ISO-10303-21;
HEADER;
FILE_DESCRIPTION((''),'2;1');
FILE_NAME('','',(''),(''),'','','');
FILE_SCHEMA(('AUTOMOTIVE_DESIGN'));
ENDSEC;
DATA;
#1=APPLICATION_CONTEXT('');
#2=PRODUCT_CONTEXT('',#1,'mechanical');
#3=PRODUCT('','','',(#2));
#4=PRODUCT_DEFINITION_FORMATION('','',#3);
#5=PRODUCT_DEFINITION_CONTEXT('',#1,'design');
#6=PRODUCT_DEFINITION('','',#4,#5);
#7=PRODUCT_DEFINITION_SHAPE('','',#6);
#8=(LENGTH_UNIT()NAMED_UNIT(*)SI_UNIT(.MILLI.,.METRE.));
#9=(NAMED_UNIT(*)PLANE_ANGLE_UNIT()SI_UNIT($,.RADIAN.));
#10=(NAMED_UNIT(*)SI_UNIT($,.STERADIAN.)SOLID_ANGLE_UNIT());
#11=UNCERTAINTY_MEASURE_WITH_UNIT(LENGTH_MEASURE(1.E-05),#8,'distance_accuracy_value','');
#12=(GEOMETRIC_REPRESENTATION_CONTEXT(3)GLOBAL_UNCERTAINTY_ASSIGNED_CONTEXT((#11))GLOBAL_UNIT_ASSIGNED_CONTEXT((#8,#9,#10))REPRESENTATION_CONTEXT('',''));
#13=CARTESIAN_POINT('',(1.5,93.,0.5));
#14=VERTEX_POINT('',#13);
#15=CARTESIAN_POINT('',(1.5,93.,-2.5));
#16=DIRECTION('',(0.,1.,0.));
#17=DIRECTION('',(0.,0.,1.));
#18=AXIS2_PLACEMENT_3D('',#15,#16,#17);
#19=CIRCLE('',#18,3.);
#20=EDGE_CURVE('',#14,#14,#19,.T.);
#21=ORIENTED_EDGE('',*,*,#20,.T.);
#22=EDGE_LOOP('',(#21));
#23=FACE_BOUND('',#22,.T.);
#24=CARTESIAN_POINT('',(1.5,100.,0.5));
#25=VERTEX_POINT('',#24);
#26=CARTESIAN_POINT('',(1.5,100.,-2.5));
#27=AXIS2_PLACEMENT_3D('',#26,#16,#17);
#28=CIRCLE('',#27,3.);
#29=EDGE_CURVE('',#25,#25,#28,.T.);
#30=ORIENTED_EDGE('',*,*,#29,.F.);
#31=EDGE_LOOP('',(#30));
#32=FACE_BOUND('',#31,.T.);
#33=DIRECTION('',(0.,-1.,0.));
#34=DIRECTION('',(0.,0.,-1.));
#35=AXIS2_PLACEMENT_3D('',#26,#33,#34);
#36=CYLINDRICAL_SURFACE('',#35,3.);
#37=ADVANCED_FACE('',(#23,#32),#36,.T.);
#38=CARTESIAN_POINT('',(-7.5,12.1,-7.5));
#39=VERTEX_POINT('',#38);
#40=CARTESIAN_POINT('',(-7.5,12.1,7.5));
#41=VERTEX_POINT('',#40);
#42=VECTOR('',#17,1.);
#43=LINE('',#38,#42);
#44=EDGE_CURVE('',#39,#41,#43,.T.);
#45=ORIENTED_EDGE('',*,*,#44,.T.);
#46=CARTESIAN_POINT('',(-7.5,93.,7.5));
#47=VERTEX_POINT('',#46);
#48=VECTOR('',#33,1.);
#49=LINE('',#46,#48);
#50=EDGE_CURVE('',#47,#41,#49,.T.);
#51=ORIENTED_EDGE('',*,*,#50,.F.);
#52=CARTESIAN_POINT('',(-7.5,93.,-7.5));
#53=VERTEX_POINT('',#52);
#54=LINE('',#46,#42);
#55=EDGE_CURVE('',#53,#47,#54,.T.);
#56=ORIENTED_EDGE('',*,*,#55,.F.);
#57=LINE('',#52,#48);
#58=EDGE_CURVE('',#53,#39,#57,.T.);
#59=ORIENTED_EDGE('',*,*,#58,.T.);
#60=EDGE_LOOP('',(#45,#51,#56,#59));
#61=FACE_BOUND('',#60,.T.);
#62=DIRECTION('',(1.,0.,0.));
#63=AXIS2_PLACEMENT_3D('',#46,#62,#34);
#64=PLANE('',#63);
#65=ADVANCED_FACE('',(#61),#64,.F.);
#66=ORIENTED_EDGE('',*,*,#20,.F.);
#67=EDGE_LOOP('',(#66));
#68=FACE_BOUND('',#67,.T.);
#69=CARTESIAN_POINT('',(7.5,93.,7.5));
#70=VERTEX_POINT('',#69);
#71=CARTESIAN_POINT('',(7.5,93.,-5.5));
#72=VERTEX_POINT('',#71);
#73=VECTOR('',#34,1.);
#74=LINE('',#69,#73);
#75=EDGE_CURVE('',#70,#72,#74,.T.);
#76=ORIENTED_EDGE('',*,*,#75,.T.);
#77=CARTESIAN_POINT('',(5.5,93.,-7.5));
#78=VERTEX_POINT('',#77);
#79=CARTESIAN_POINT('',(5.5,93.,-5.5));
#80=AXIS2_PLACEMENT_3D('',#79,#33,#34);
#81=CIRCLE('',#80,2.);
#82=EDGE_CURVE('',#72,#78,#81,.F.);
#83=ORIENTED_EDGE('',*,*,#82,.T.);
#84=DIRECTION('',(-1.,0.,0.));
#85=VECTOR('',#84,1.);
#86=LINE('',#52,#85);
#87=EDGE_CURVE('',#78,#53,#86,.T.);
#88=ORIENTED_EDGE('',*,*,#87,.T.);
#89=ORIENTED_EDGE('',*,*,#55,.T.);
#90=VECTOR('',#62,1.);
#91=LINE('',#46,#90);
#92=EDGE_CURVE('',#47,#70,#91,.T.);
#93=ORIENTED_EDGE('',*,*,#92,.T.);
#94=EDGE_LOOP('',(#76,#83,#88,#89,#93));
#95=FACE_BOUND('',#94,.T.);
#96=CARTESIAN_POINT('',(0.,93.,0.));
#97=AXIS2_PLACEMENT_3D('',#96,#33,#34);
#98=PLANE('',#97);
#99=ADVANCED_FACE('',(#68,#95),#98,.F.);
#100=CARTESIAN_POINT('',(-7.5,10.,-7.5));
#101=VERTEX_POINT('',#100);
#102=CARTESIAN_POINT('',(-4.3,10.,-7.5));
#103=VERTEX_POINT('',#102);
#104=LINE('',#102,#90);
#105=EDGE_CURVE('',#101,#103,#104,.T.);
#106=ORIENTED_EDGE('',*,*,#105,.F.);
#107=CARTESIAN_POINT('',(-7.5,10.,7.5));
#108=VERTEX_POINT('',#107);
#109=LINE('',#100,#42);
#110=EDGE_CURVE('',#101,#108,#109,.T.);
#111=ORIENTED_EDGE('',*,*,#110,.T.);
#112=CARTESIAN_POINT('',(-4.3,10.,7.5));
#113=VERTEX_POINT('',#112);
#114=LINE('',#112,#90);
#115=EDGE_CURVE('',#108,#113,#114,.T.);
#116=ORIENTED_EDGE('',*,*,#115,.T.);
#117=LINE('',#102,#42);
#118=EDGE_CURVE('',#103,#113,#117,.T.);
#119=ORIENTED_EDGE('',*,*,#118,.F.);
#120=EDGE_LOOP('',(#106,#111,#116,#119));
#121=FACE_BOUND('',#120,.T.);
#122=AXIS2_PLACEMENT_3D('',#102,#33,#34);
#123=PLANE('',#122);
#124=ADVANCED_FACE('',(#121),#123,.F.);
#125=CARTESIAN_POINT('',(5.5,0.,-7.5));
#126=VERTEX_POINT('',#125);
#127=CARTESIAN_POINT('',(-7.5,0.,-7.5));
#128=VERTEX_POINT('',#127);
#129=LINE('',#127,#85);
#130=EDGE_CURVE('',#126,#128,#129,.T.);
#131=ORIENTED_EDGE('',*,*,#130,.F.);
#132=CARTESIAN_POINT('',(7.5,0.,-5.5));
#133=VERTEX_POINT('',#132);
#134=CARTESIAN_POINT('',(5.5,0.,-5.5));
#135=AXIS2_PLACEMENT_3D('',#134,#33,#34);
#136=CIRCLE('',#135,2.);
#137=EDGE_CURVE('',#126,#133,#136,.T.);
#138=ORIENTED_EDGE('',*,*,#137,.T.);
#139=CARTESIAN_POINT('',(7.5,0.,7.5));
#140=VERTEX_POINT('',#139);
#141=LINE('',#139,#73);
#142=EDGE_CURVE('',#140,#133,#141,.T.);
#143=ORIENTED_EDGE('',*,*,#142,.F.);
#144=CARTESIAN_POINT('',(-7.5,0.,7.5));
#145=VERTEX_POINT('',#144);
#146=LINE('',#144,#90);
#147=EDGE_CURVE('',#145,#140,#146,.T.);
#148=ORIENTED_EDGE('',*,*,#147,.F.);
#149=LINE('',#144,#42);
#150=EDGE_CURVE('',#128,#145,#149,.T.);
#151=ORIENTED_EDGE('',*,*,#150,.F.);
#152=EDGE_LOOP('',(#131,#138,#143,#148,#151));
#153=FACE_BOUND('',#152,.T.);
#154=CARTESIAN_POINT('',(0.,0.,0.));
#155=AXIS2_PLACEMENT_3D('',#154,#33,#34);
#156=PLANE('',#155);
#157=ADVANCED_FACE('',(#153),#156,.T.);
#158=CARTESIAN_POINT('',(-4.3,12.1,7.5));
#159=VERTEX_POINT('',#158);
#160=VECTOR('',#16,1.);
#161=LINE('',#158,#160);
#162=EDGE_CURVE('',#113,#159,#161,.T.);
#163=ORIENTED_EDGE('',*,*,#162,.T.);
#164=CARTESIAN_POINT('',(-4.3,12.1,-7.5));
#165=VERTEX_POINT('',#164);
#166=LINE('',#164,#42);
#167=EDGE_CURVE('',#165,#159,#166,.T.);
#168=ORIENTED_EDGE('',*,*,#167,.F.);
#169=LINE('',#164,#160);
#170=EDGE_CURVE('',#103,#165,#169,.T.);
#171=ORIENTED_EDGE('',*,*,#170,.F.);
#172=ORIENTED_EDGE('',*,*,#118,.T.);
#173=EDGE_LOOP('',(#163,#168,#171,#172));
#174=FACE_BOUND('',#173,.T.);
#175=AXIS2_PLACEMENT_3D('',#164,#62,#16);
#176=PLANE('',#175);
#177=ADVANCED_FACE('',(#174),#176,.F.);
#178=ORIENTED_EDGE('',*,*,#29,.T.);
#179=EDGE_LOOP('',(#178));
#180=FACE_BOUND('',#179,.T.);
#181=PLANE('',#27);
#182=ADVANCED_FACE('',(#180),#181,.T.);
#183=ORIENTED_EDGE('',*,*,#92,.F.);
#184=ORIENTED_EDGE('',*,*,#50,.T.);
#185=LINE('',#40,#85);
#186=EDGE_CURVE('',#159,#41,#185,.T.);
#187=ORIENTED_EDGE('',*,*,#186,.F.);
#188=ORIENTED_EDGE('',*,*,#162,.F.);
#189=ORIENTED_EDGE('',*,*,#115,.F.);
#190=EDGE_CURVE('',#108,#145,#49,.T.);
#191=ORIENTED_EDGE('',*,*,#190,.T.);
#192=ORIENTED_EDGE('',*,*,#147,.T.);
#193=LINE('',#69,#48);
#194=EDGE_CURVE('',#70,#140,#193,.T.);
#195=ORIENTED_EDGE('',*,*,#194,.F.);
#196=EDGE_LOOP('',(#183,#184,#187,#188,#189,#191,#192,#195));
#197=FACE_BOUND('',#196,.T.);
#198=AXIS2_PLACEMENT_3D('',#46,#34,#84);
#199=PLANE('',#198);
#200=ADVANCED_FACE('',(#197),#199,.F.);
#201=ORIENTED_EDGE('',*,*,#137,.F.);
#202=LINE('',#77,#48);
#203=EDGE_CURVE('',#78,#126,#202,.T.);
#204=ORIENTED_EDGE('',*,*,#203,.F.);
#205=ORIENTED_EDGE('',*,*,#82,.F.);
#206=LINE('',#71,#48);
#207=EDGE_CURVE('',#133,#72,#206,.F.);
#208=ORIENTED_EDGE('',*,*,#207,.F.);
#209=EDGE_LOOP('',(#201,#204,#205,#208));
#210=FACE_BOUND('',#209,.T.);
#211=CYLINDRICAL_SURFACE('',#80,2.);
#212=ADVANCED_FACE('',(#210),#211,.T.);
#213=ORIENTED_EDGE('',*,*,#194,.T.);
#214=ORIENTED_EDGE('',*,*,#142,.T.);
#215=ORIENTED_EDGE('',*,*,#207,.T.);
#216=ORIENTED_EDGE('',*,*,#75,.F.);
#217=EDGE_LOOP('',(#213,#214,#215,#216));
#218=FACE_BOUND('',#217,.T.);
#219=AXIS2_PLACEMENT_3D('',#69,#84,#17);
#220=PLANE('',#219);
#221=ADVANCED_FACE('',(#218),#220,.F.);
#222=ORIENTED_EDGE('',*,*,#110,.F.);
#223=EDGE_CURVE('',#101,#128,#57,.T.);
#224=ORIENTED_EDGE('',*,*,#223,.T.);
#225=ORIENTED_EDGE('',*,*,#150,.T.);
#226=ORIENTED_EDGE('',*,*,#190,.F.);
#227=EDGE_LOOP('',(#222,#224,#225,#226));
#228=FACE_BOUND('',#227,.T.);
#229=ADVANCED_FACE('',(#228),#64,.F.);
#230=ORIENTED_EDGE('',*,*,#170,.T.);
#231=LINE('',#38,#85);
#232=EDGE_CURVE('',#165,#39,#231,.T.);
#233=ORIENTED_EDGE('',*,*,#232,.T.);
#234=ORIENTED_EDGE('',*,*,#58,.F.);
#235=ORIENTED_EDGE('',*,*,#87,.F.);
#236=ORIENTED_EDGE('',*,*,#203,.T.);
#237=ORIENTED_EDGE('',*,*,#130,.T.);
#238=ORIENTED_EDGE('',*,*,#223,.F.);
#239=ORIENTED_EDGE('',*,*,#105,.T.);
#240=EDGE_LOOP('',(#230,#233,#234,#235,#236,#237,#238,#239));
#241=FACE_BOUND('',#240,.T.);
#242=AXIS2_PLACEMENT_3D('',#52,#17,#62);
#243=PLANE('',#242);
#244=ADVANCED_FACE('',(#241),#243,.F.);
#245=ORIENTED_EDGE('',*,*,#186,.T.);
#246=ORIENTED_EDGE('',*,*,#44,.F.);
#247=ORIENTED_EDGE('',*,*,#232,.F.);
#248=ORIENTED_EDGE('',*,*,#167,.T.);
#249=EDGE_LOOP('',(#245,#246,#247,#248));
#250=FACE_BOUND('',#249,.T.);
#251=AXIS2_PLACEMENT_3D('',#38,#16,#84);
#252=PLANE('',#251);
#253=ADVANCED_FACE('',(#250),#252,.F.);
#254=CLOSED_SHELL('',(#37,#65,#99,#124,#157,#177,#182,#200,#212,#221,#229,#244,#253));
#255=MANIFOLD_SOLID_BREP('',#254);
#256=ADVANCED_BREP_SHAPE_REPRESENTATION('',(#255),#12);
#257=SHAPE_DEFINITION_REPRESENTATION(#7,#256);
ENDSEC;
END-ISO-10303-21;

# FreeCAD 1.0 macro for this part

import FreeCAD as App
import Part
import Sketcher

V = App.Vector
Q = App.Units.Quantity


def edges_at(feature, points):
    """Names of the edges that pass closest to the given points."""
    edges = feature.Shape.Edges
    near = lambda p: min(range(len(edges)), key=lambda i: edges[i].distToShape(Part.Vertex(*p))[0])
    return sorted({f"Edge{near(p) + 1}" for p in points})


def add_polygon(sketch, points):
    """Adds a closed chain of lines whose ends are joined by coincident constraints."""
    first, n = sketch.GeometryCount, len(points)
    for a, b in zip(points, points[1:] + points[:1]):
        sketch.addGeometry(Part.LineSegment(App.Vector(*a, 0), App.Vector(*b, 0)), False)
    for i in range(n):
        sketch.addConstraint(Sketcher.Constraint("Coincident", first + i, 2, first + (i + 1) % n, 1))

doc = App.newDocument("Part")
body = doc.addObject("PartDesign::Body", "Body")

sketch1 = body.newObject("Sketcher::SketchObject", "Sketch")
sketch1.AttachmentSupport = (doc.getObject("XZ_Plane"), [""])
sketch1.MapMode = "FlatFace"
add_polygon(sketch1, [(-8, -8), (-8, 8), (8, 8), (8, -8)])
sketch1.addConstraint([
    Sketcher.Constraint("Vertical", 0),
    Sketcher.Constraint("Horizontal", 1),
    Sketcher.Constraint("Vertical", 2),
    Sketcher.Constraint("Horizontal", 3),
    Sketcher.Constraint("Symmetric", 0, 2, 2, 2, -1, 1),
    Sketcher.Constraint("Equal", 3, 0),
    Sketcher.Constraint("DistanceX", 1, 1, 1, 2, Q("15 mm")),
])
pad1 = body.newObject("PartDesign::Pad", "Pad")
pad1.Profile = sketch1
pad1.Length = 93
pad1.Reversed = True

sketch2 = body.newObject("Sketcher::SketchObject", "Sketch001")
sketch2.AttachmentSupport = (doc.getObject("XZ_Plane"), [""])
sketch2.MapMode = "FlatFace"
sketch2.AttachmentOffset = App.Placement(V(0, 0, -93), App.Rotation())
sketch2.addGeometry(Part.Circle(V(1.5, -2.5, 0), V(0, 0, 1), 3), False)
sketch2.addConstraint([
    Sketcher.Constraint("Diameter", 0, Q("6 mm")),
    Sketcher.Constraint("DistanceX", -1, 1, 0, 3, Q("1.5 mm")),
    Sketcher.Constraint("DistanceY", 0, 3, -1, 1, Q("2.5 mm")),
])
pad2 = body.newObject("PartDesign::Pad", "Pad001")
pad2.Profile = sketch2
pad2.Length = 7
pad2.Reversed = True

sketch3 = body.newObject("Sketcher::SketchObject", "Sketch002")
sketch3.AttachmentSupport = (doc.getObject("XY_Plane"), [""])
sketch3.MapMode = "FlatFace"
sketch3.AttachmentOffset = App.Placement(V(0, 0, 7.5), App.Rotation())
add_polygon(sketch3, [(-7.5, 12.1), (-7.5, 10), (-4.3, 10), (-4.3, 12.1)])
sketch3.addConstraint([
    Sketcher.Constraint("Vertical", 0),
    Sketcher.Constraint("Horizontal", 1),
    Sketcher.Constraint("Vertical", 2),
    Sketcher.Constraint("Horizontal", 3),
    Sketcher.Constraint("DistanceX", 1, 1, 1, 2, Q("3.2 mm")),
    Sketcher.Constraint("DistanceY", 0, 2, 0, 1, Q("2.1 mm")),
    Sketcher.Constraint("DistanceY", -1, 1, 0, 2, Q("10 mm")),
    Sketcher.Constraint("DistanceX", 0, 2, -1, 1, Q("7.5 mm")),
])
pocket1 = body.newObject("PartDesign::Pocket", "Pocket")
pocket1.Profile = sketch3
pocket1.Type = "ThroughAll"
doc.recompute()

fillet = body.newObject("PartDesign::Fillet", "Fillet")
fillet.Base = (pocket1, edges_at(pocket1, [(7.5, 46.5, -7.5)]))
fillet.Radius = 2

doc.recompute()
